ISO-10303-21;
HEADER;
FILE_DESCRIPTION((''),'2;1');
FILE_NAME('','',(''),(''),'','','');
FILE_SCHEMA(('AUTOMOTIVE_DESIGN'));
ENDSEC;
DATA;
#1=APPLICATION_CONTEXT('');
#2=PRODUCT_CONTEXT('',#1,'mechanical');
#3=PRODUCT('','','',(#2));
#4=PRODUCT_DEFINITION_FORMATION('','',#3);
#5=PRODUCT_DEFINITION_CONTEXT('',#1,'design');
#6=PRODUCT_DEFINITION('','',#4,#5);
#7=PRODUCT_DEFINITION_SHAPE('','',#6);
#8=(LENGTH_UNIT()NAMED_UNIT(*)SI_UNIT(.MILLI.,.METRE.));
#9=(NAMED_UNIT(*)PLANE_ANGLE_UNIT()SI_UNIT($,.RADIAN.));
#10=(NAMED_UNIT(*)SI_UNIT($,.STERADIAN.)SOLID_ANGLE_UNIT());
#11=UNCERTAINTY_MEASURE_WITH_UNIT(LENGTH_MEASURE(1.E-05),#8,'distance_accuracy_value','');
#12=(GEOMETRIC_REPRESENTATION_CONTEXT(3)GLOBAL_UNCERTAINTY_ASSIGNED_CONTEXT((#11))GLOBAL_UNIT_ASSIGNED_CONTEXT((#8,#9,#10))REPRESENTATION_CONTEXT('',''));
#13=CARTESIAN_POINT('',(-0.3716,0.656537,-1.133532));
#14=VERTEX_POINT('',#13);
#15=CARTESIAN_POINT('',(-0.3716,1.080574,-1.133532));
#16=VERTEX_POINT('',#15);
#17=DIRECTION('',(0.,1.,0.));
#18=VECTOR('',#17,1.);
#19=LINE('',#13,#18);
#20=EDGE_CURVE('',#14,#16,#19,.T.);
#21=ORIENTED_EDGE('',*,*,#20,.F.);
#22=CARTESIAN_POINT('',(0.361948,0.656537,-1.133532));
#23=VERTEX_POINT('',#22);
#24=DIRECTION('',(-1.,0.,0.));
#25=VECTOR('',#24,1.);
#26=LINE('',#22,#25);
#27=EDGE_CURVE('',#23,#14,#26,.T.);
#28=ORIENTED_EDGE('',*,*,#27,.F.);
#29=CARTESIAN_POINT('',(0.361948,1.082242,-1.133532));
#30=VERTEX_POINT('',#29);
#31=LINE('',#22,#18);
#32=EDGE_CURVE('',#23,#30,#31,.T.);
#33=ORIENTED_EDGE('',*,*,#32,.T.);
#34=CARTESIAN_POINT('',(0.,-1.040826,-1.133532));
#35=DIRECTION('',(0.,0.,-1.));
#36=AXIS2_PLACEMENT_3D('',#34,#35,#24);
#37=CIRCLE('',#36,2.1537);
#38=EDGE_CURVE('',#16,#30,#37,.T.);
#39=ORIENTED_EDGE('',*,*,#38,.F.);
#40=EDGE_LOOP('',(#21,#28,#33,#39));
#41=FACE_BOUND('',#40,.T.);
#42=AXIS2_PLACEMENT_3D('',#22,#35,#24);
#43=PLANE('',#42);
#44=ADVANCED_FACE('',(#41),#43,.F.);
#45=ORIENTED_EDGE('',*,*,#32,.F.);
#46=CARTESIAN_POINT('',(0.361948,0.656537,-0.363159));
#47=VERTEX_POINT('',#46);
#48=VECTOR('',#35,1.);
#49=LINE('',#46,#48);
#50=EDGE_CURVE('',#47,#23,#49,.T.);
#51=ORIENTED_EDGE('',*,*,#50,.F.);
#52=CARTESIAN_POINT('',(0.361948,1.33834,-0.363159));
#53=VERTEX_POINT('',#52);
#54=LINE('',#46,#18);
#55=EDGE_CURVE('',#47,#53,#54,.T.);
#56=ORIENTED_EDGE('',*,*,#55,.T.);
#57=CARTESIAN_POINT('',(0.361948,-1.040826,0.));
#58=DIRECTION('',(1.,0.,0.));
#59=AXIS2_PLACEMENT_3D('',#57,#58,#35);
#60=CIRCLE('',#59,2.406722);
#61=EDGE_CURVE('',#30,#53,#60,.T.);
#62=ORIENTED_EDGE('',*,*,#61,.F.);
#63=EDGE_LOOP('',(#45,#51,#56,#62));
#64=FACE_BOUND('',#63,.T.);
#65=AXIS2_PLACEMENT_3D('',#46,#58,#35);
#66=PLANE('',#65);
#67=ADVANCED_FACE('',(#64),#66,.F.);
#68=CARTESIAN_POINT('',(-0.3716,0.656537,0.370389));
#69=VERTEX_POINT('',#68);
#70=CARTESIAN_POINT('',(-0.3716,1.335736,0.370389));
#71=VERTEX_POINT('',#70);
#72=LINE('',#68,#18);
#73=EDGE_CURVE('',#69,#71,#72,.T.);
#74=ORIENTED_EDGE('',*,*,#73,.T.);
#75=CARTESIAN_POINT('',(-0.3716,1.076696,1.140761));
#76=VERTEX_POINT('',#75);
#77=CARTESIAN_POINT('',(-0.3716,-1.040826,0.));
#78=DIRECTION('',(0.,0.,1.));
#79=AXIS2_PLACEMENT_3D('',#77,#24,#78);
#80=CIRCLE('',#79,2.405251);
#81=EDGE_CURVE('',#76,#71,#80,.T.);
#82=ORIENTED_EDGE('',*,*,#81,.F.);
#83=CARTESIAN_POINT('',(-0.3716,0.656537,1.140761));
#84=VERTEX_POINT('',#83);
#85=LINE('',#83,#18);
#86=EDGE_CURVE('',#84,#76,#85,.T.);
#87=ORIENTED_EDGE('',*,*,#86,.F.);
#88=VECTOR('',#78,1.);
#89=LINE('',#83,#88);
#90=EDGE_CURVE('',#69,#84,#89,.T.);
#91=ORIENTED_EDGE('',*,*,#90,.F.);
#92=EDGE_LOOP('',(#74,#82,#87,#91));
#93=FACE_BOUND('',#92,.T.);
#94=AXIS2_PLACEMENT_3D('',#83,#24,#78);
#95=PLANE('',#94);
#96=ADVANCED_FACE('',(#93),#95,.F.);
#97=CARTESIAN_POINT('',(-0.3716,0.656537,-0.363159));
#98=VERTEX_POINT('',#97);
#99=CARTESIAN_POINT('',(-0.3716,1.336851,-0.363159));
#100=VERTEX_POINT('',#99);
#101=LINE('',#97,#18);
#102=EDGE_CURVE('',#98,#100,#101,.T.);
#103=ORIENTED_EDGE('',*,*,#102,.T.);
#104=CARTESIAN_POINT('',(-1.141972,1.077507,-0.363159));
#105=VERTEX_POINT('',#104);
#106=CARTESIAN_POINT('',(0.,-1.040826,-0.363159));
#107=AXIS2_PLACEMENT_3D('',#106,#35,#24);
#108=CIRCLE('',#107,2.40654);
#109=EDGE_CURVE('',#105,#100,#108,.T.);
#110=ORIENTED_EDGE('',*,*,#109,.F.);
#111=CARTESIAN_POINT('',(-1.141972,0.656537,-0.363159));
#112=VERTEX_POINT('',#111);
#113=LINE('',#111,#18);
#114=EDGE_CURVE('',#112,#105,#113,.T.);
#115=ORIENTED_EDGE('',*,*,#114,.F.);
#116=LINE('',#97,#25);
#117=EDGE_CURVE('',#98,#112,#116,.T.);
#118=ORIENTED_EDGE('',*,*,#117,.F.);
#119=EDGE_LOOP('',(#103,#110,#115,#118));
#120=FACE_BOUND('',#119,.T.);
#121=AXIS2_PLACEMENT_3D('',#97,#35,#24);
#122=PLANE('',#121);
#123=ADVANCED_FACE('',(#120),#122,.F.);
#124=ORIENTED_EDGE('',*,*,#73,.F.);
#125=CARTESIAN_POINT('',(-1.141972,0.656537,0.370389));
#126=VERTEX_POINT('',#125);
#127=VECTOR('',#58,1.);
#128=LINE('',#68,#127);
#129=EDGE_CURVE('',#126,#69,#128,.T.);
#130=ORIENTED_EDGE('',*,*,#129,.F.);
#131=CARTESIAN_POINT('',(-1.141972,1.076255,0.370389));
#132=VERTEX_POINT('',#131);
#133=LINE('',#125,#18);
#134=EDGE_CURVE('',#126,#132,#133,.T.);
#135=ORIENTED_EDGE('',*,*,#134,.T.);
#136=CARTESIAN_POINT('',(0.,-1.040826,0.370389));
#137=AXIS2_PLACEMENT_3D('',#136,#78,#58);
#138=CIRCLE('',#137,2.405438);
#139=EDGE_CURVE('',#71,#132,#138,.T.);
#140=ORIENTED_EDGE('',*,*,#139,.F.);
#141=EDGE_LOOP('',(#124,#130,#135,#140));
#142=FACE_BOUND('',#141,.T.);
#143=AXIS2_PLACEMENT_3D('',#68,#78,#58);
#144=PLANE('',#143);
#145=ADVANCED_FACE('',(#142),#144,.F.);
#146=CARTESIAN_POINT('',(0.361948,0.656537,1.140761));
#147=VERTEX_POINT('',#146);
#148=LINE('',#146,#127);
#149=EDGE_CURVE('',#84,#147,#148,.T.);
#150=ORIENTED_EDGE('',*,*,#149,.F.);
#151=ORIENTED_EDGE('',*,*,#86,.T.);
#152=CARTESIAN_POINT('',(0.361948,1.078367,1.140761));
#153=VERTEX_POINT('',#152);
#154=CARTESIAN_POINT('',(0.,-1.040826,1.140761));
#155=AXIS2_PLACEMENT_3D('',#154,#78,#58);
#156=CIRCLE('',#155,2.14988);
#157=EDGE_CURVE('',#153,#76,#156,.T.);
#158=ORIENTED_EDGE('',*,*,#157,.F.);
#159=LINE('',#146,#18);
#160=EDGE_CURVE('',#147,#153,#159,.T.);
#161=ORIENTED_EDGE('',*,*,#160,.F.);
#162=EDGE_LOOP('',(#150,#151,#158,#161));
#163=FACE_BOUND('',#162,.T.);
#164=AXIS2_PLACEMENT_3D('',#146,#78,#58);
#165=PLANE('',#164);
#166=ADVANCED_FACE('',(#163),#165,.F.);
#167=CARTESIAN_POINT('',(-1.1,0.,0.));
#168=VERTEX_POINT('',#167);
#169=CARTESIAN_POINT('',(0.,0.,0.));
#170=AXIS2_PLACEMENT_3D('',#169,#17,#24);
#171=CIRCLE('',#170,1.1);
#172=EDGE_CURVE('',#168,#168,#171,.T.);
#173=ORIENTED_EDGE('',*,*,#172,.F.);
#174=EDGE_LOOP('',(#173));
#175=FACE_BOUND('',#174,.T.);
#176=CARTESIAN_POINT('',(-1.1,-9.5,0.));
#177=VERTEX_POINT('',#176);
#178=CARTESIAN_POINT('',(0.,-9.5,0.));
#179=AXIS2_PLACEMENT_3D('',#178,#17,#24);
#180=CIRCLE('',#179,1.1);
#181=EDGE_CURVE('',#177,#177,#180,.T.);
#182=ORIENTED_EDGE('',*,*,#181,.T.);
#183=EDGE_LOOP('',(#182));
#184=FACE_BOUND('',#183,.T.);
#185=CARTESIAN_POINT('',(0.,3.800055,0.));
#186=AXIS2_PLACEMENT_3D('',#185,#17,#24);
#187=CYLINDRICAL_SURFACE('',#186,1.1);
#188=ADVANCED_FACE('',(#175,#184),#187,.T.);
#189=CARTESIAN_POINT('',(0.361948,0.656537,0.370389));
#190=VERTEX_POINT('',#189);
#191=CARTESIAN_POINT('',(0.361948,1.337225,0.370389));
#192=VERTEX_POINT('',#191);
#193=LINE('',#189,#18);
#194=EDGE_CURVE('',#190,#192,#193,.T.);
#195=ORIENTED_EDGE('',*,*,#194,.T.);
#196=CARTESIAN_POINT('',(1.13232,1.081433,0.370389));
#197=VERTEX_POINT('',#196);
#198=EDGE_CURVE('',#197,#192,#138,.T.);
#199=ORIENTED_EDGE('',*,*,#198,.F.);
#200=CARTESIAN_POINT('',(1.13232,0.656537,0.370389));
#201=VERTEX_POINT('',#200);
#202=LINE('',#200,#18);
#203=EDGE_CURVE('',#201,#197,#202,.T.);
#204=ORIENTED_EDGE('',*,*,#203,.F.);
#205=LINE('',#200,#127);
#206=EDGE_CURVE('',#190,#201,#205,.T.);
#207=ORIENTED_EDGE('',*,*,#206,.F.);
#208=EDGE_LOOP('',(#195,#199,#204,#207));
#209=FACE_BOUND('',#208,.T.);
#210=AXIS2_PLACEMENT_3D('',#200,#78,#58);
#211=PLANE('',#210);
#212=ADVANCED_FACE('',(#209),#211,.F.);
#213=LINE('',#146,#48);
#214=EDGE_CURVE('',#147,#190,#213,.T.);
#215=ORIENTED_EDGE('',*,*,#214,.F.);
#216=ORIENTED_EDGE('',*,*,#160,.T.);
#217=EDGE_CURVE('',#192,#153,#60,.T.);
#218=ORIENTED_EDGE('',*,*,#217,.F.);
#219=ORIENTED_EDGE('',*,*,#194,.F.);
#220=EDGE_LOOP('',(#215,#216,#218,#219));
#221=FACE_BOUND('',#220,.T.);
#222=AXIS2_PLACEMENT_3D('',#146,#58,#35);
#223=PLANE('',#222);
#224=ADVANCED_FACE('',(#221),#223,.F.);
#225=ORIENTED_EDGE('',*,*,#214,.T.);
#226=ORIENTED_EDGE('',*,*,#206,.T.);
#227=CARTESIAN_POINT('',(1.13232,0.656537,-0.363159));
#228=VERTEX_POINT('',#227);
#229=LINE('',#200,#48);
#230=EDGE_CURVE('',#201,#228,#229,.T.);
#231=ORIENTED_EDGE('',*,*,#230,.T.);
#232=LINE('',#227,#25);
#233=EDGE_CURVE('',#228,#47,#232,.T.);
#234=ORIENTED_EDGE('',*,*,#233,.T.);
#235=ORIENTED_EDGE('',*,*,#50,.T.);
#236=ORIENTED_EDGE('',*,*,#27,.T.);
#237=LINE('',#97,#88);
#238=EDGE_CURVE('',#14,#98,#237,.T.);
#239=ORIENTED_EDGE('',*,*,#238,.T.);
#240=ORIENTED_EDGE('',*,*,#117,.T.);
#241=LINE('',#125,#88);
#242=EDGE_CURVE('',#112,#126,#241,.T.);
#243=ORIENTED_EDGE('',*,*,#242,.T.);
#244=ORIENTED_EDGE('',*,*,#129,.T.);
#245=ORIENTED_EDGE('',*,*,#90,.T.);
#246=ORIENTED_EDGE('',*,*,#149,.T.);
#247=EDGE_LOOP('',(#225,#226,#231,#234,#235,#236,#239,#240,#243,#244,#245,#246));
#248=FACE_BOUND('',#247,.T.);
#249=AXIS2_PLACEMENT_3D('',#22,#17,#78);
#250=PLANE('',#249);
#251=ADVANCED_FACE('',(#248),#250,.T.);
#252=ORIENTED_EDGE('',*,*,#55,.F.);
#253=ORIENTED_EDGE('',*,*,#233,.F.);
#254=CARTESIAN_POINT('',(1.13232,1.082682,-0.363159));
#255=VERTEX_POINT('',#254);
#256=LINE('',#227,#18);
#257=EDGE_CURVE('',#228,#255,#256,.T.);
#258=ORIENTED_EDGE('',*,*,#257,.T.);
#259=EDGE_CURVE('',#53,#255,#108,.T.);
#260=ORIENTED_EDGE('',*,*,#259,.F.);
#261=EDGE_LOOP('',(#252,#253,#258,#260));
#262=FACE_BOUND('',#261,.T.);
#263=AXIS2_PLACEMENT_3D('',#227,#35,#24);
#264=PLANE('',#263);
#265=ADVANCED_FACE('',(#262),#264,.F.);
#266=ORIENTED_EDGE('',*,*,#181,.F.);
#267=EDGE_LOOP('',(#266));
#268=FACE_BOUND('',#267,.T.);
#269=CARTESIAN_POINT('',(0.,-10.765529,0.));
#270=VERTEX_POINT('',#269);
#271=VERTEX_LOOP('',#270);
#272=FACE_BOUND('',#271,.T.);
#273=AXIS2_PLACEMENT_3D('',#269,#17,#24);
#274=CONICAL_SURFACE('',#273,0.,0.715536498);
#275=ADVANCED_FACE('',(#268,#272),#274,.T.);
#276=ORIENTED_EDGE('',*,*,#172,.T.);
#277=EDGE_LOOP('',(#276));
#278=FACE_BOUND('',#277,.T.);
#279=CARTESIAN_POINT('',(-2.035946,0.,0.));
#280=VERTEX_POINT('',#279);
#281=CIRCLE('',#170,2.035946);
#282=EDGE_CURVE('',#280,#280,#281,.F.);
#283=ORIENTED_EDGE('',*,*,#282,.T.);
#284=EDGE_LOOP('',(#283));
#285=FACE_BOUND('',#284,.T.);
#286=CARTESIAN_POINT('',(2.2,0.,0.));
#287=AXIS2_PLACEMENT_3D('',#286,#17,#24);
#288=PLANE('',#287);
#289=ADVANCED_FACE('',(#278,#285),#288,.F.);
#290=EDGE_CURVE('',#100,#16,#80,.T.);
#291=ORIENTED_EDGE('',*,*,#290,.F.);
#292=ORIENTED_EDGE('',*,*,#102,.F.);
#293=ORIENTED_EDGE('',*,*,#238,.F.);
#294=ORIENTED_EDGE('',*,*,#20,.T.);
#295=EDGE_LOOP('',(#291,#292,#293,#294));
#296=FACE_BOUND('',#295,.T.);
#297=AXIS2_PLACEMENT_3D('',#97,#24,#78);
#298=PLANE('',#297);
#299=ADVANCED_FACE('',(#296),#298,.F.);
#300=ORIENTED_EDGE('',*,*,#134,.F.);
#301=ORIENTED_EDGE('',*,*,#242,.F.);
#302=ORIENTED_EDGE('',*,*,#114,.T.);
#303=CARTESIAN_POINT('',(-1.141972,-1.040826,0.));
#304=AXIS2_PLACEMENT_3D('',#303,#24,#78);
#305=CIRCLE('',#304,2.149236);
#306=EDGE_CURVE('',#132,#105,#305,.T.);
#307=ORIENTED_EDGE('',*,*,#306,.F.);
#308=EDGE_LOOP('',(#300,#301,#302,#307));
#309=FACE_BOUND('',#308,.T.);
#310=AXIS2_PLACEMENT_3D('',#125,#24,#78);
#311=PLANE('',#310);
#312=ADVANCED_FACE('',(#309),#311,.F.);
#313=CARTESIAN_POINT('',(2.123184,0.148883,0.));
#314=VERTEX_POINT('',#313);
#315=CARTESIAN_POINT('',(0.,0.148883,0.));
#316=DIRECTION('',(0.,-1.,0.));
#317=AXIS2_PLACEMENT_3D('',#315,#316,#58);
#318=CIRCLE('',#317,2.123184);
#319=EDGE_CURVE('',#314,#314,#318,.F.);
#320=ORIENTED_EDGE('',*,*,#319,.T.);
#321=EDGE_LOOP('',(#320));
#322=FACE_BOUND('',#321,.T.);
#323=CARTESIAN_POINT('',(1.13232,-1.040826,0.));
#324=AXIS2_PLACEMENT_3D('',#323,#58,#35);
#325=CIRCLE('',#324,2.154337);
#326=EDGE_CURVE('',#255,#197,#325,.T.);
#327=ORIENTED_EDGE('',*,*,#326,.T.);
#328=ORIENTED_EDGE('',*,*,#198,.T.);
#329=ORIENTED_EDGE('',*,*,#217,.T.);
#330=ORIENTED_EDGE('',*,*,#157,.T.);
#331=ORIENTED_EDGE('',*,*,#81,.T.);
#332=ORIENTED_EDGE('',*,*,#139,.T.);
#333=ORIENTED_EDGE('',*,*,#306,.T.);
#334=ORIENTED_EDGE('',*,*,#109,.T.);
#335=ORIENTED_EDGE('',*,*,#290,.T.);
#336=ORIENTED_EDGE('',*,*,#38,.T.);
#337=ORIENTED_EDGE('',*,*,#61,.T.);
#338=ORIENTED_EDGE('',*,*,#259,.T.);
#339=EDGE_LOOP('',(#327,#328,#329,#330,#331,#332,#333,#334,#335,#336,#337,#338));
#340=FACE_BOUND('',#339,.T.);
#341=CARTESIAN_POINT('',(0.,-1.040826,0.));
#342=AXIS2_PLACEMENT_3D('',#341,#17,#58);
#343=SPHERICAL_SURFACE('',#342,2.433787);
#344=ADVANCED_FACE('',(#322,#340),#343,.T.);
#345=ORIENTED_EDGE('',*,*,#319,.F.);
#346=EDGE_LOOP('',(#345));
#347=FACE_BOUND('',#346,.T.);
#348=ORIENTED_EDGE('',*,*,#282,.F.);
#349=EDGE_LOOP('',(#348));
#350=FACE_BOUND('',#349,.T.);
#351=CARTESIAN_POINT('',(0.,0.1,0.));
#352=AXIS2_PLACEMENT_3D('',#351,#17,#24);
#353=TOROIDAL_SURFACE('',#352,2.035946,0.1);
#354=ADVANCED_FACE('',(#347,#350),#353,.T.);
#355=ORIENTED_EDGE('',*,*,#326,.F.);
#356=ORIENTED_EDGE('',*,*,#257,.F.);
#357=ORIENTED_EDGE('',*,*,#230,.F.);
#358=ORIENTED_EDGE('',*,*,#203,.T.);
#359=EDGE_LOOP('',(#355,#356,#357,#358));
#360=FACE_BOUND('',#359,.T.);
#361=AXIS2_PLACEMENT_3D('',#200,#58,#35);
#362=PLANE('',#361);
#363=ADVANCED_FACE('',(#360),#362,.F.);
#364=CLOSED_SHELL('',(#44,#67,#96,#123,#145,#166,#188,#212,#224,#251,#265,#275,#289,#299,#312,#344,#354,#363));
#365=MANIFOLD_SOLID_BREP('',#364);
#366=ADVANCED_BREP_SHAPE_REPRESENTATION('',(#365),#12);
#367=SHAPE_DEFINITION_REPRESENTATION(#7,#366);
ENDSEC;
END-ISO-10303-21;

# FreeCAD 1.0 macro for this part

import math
import FreeCAD as App
import Part
import Sketcher


def edges_at(feature, points):
    """Names of the edges that pass closest to the given points."""
    edges = feature.Shape.Edges
    near = lambda p: min(range(len(edges)), key=lambda i: edges[i].distToShape(Part.Vertex(*p))[0])
    return sorted({f"Edge{near(p) + 1}" for p in points})

doc = App.newDocument("Part")
params = doc.addObject("Spreadsheet::Sheet", "Params")
for row, (alias, value) in enumerate([
    ("sketch1_width", "1.1 mm"),
    ("sketch1_height", "9.5 mm"),
    ("revolution_angle", "360 deg"),
    ("fillet_radius", "0.1 mm"),
    ("pocket1_length", "1 mm"),
], start=1):
    params.set(f"A{row}", alias)
    params.set(f"B{row}", "=" + value)
    params.setAlias(f"B{row}", alias)

body = doc.addObject("PartDesign::Body", "Body")

# Sketch on XY plane
sketch1 = body.newObject("Sketcher::SketchObject", "Sketch")
sketch1.AttachmentSupport = (doc.getObject("XY_Plane"), [""])
sketch1.MapMode = "FlatFace"
sketch1.addGeometry(Part.LineSegment(App.Vector(1.1, 0, 0), App.Vector(2.2, 0, 0)), False)
sketch1.addGeometry(Part.ArcOfCircle(Part.Circle(App.Vector(0, -1, 0), App.Vector(0, 0, 1), 2.4), math.radians(25), math.radians(90)), False)
sketch1.addGeometry(Part.LineSegment(App.Vector(0, 1.4, 0), App.Vector(0, -10.8, 0)), False)
sketch1.addGeometry(Part.LineSegment(App.Vector(0, -10.8, 0), App.Vector(1.1, -9.5, 0)), False)
sketch1.addGeometry(Part.LineSegment(App.Vector(1.1, -9.5, 0), App.Vector(1.1, 0, 0)), False)
sketch1.addConstraint(Sketcher.Constraint("Coincident", 0, 2, 1, 1))
sketch1.addConstraint(Sketcher.Constraint("Coincident", 1, 2, 2, 1))
sketch1.addConstraint(Sketcher.Constraint("Coincident", 2, 2, 3, 1))
sketch1.addConstraint(Sketcher.Constraint("Coincident", 3, 2, 4, 1))
sketch1.addConstraint(Sketcher.Constraint("Coincident", 4, 2, 0, 1))
sketch1.addConstraint(Sketcher.Constraint("Horizontal", 0))
sketch1.addConstraint(Sketcher.Constraint("Vertical", 2))
sketch1.addConstraint(Sketcher.Constraint("Vertical", 4))
sketch1.addConstraint(Sketcher.Constraint("PointOnObject", 1, 3, -2))
sketch1.addConstraint(Sketcher.Constraint("PointOnObject", 0, 2, -1))
sketch1.addConstraint(Sketcher.Constraint("PointOnObject", 1, 2, -2))
sketch1.addConstraint(Sketcher.Constraint("DistanceX", 0, 1, 0, 2, 1.1))
sketch1.addConstraint(Sketcher.Constraint("DistanceY", 4, 1, 4, 2, 9.5))
sketch1.addConstraint(Sketcher.Constraint("DistanceX", -1, 1, 0, 2, 2.2))
sketch1.addConstraint(Sketcher.Constraint("Radius", 1, 2.433787))
sketch1.addConstraint(Sketcher.Constraint("DistanceY", 2, 2, 2, 1, 12.15849))
sketch1.setExpression("Constraints[11]", "Params.sketch1_width")
sketch1.setExpression("Constraints[12]", "Params.sketch1_height")
revolution = body.newObject("PartDesign::Revolution", "Revolution")
revolution.Profile = sketch1
revolution.ReferenceAxis = (sketch1, ["V_Axis"])
revolution.setExpression("Angle", "Params.revolution_angle")
doc.recompute()

fillet = body.newObject("PartDesign::Fillet", "Fillet")
fillet.Base = (revolution, edges_at(revolution, [(2.2, 0, 0)]))
fillet.setExpression("Radius", "Params.fillet_radius")

# Sketch on XZ plane
sketch2 = body.newObject("Sketcher::SketchObject", "Sketch001")
sketch2.AttachmentSupport = (doc.getObject("XZ_Plane"), [""])
sketch2.MapMode = "FlatFace"
sketch2.AttachmentOffset = App.Placement(App.Vector(0, 0, -1.156537), App.Rotation())
sketch2.addGeometry(Part.LineSegment(App.Vector(-0.4, 1.1, 0), App.Vector(0.4, 1.1, 0)), False)
sketch2.addGeometry(Part.LineSegment(App.Vector(0.4, 1.1, 0), App.Vector(0.4, 0.4, 0)), False)
sketch2.addGeometry(Part.LineSegment(App.Vector(0.4, 0.4, 0), App.Vector(1.1, 0.4, 0)), False)
sketch2.addGeometry(Part.LineSegment(App.Vector(1.1, 0.4, 0), App.Vector(1.1, -0.4, 0)), False)
sketch2.addGeometry(Part.LineSegment(App.Vector(1.1, -0.4, 0), App.Vector(0.4, -0.4, 0)), False)
sketch2.addGeometry(Part.LineSegment(App.Vector(0.4, -0.4, 0), App.Vector(0.4, -1.1, 0)), False)
sketch2.addGeometry(Part.LineSegment(App.Vector(0.4, -1.1, 0), App.Vector(-0.4, -1.1, 0)), False)
sketch2.addGeometry(Part.LineSegment(App.Vector(-0.4, -1.1, 0), App.Vector(-0.4, -0.4, 0)), False)
sketch2.addGeometry(Part.LineSegment(App.Vector(-0.4, -0.4, 0), App.Vector(-1.1, -0.4, 0)), False)
sketch2.addGeometry(Part.LineSegment(App.Vector(-1.1, -0.4, 0), App.Vector(-1.1, 0.4, 0)), False)
sketch2.addGeometry(Part.LineSegment(App.Vector(-1.1, 0.4, 0), App.Vector(-0.4, 0.4, 0)), False)
sketch2.addGeometry(Part.LineSegment(App.Vector(-0.4, 0.4, 0), App.Vector(-0.4, 1.1, 0)), False)
sketch2.addConstraint(Sketcher.Constraint("Coincident", 0, 2, 1, 1))
sketch2.addConstraint(Sketcher.Constraint("Coincident", 1, 2, 2, 1))
sketch2.addConstraint(Sketcher.Constraint("Coincident", 2, 2, 3, 1))
sketch2.addConstraint(Sketcher.Constraint("Coincident", 3, 2, 4, 1))
sketch2.addConstraint(Sketcher.Constraint("Coincident", 4, 2, 5, 1))
sketch2.addConstraint(Sketcher.Constraint("Coincident", 5, 2, 6, 1))
sketch2.addConstraint(Sketcher.Constraint("Coincident", 6, 2, 7, 1))
sketch2.addConstraint(Sketcher.Constraint("Coincident", 7, 2, 8, 1))
sketch2.addConstraint(Sketcher.Constraint("Coincident", 8, 2, 9, 1))
sketch2.addConstraint(Sketcher.Constraint("Coincident", 9, 2, 10, 1))
sketch2.addConstraint(Sketcher.Constraint("Coincident", 10, 2, 11, 1))
sketch2.addConstraint(Sketcher.Constraint("Coincident", 11, 2, 0, 1))
sketch2.addConstraint(Sketcher.Constraint("Horizontal", 0))
sketch2.addConstraint(Sketcher.Constraint("Vertical", 1))
sketch2.addConstraint(Sketcher.Constraint("Horizontal", 2))
sketch2.addConstraint(Sketcher.Constraint("Vertical", 3))
sketch2.addConstraint(Sketcher.Constraint("Horizontal", 4))
sketch2.addConstraint(Sketcher.Constraint("Vertical", 5))
sketch2.addConstraint(Sketcher.Constraint("Horizontal", 6))
sketch2.addConstraint(Sketcher.Constraint("Vertical", 7))
sketch2.addConstraint(Sketcher.Constraint("Horizontal", 8))
sketch2.addConstraint(Sketcher.Constraint("Vertical", 9))
sketch2.addConstraint(Sketcher.Constraint("Horizontal", 10))
sketch2.addConstraint(Sketcher.Constraint("Vertical", 11))
sketch2.addConstraint(Sketcher.Constraint("Horizontal", 4, 2, 7, 2))
sketch2.addConstraint(Sketcher.Constraint("Horizontal", 2, 2, 9, 2))
sketch2.addConstraint(Sketcher.Constraint("Vertical", 1, 2, 4, 2))
sketch2.addConstraint(Sketcher.Constraint("Vertical", 7, 2, 10, 2))
sketch2.addConstraint(Sketcher.Constraint("Equal", 4, 8))
sketch2.addConstraint(Sketcher.Constraint("Equal", 10, 1))
sketch2.addConstraint(Sketcher.Constraint("Equal", 6, 3))
sketch2.addConstraint(Sketcher.Constraint("Equal", 1, 5))
sketch2.addConstraint(Sketcher.Constraint("DistanceX", 6, 2, -1, 1, 0.3716))
sketch2.addConstraint(Sketcher.Constraint("DistanceX", 0, 1, 0, 2, 0.733548))
sketch2.addConstraint(Sketcher.Constraint("DistanceX", 2, 1, 2, 2, 0.770372))
sketch2.addConstraint(Sketcher.Constraint("DistanceY", -1, 1, 0, 2, 1.140761))
pocket1 = body.newObject("PartDesign::Pocket", "Pocket")
pocket1.Profile = sketch2
pocket1.setExpression("Length", "Params.pocket1_length")
pocket1.Midplane = True

doc.recompute()
